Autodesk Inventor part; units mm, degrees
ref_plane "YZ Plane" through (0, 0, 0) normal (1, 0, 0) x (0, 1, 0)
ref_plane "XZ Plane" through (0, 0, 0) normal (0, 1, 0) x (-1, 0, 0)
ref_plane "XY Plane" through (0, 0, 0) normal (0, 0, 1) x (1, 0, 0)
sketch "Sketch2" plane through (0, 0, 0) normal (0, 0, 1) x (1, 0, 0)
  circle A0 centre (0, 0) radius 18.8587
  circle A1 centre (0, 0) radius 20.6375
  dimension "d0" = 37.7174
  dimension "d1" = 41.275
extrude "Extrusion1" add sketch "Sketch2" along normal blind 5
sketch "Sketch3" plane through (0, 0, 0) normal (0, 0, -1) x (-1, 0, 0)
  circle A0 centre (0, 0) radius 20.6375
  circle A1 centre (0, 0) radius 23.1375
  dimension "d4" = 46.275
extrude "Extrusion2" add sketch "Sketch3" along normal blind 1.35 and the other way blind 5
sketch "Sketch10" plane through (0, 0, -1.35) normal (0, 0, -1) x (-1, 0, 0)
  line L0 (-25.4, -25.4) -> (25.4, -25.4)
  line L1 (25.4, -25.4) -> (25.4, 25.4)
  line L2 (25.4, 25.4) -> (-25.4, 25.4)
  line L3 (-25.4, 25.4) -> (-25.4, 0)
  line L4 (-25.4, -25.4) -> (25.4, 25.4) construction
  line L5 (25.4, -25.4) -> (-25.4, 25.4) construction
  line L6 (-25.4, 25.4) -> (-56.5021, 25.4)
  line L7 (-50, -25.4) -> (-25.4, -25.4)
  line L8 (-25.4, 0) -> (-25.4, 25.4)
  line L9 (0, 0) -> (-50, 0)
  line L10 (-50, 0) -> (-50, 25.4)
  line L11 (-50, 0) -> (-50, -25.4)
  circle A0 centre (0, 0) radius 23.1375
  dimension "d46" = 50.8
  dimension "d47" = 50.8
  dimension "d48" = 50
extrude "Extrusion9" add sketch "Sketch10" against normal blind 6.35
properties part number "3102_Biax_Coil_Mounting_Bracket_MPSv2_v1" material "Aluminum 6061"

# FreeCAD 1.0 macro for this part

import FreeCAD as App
import Part
import Sketcher

V = App.Vector
Q = App.Units.Quantity


def add_polygon(sketch, points):
    """Adds a closed chain of lines whose ends are joined by coincident constraints."""
    first, n = sketch.GeometryCount, len(points)
    for a, b in zip(points, points[1:] + points[:1]):
        sketch.addGeometry(Part.LineSegment(App.Vector(*a, 0), App.Vector(*b, 0)), False)
    for i in range(n):
        sketch.addConstraint(Sketcher.Constraint("Coincident", first + i, 2, first + (i + 1) % n, 1))

doc = App.newDocument("Part")
body = doc.addObject("PartDesign::Body", "Body")

sketch1 = doc.addObject("Sketcher::SketchObject", "Sketch")
body.addObject(sketch1)
sketch1.AttachmentSupport = (doc.XY_Plane, [""])
sketch1.MapMode = "FlatFace"
sketch1.addGeometry(Part.Circle(V(0, 0, 0), V(0, 0, 1), 21), False)
sketch1.addGeometry(Part.Circle(V(0, 0, 0), V(0, 0, 1), 19), False)
sketch1.addConstraint(Sketcher.Constraint("Coincident", 0, 3, -1, 1))
sketch1.addConstraint(Sketcher.Constraint("Coincident", 1, 3, -1, 1))
sketch1.addConstraint(Sketcher.Constraint("Diameter", 0, Q("1.625 in")))
sketch1.addConstraint(Sketcher.Constraint("Diameter", 1, Q("37.7174 mm")))
pad1 = doc.addObject("PartDesign::Pad", "Pad")
body.addObject(pad1)
pad1.Profile = sketch1
pad1.Length = 5

sketch2 = doc.addObject("Sketcher::SketchObject", "Sketch001")
body.addObject(sketch2)
sketch2.AttachmentSupport = (doc.XY_Plane, [""])
sketch2.MapMode = "FlatFace"
sketch2.addGeometry(Part.Circle(V(0, 0, 0), V(0, 0, 1), 23), False)
sketch2.addGeometry(Part.Circle(V(0, 0, 0), V(0, 0, 1), 21), False)
sketch2.addConstraint(Sketcher.Constraint("Coincident", 0, 3, -1, 1))
sketch2.addConstraint(Sketcher.Constraint("Coincident", 1, 3, -1, 1))
sketch2.addConstraint(Sketcher.Constraint("Diameter", 0, Q("46.275 mm")))
sketch2.addConstraint(Sketcher.Constraint("Diameter", 1, Q("1.625 in")))
pad2 = doc.addObject("PartDesign::Pad", "Pad001")
body.addObject(pad2)
pad2.Profile = sketch2
pad2.Type = "TwoLengths"
pad2.Length = 1.35
pad2.Length2 = 5
pad2.Reversed = True

sketch3 = doc.addObject("Sketcher::SketchObject", "Sketch002")
body.addObject(sketch3)
sketch3.AttachmentSupport = (doc.XY_Plane, [""])
sketch3.MapMode = "FlatFace"
sketch3.AttachmentOffset = App.Placement(V(0, 0, -1.35), App.Rotation())
add_polygon(sketch3, [(50, -25), (-25, -25), (-25, 25), (50, 25)])
sketch3.addGeometry(Part.Circle(V(0, 0, 0), V(0, 0, 1), 23), False)
sketch3.addConstraint(Sketcher.Constraint("Horizontal", 0))
sketch3.addConstraint(Sketcher.Constraint("Vertical", 1))
sketch3.addConstraint(Sketcher.Constraint("Horizontal", 2))
sketch3.addConstraint(Sketcher.Constraint("Vertical", 3))
sketch3.addConstraint(Sketcher.Constraint("Coincident", 4, 3, -1, 1))
sketch3.addConstraint(Sketcher.Constraint("DistanceY", 1, 1, 1, 2, Q("2 in")))
sketch3.addConstraint(Sketcher.Constraint("DistanceX", 0, 2, -1, 1, Q("1 in")))
sketch3.addConstraint(Sketcher.Constraint("DistanceY", 0, 2, -1, 1, Q("1 in")))
sketch3.addConstraint(Sketcher.Constraint("DistanceX", -1, 1, 2, 2, Q("1.9685 in")))
sketch3.addConstraint(Sketcher.Constraint("Diameter", 4, Q("46.275 mm")))
pad3 = doc.addObject("PartDesign::Pad", "Pad002")
body.addObject(pad3)
pad3.Profile = sketch3
pad3.Length = Q("0.25 in")

doc.recompute()
